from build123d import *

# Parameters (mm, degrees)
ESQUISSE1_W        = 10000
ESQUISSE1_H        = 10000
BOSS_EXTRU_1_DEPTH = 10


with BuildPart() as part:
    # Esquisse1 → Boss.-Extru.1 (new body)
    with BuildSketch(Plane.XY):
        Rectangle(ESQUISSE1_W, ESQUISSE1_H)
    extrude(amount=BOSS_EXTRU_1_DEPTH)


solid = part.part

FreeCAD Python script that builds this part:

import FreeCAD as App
import Part
import Sketcher

V = App.Vector
Q = App.Units.Quantity

doc = App.newDocument("Part")
body = doc.addObject("PartDesign::Body", "Body")

# Sketch on XY plane
sketch1 = body.newObject("Sketcher::SketchObject", "Sketch")
sketch1.AttachmentSupport = (doc.getObject("XY_Plane"), [""])
sketch1.MapMode = "FlatFace"
sketch1.addGeometry(Part.LineSegment(V(-5000, 5000, 0), V(-5000, -5000, 0)), False)
sketch1.addGeometry(Part.LineSegment(V(-5000, -5000, 0), V(5000, -5000, 0)), False)
sketch1.addGeometry(Part.LineSegment(V(5000, -5000, 0), V(5000, 5000, 0)), False)
sketch1.addGeometry(Part.LineSegment(V(5000, 5000, 0), V(-5000, 5000, 0)), False)
sketch1.addConstraint(Sketcher.Constraint("Coincident", 0, 2, 1, 1))
sketch1.addConstraint(Sketcher.Constraint("Coincident", 1, 2, 2, 1))
sketch1.addConstraint(Sketcher.Constraint("Coincident", 2, 2, 3, 1))
sketch1.addConstraint(Sketcher.Constraint("Coincident", 3, 2, 0, 1))
sketch1.addConstraint(Sketcher.Constraint("Vertical", 0))
sketch1.addConstraint(Sketcher.Constraint("Horizontal", 1))
sketch1.addConstraint(Sketcher.Constraint("Vertical", 2))
sketch1.addConstraint(Sketcher.Constraint("Horizontal", 3))
sketch1.addConstraint(Sketcher.Constraint("Symmetric", 0, 2, 2, 2, -1, 1))
sketch1.addConstraint(Sketcher.Constraint("Equal", 3, 0))
sketch1.addConstraint(Sketcher.Constraint("DistanceX", 1, 1, 1, 2, Q("10000 mm")))
pad1 = body.newObject("PartDesign::Pad", "Pad")
pad1.Profile = sketch1
pad1.Length = 10

doc.recompute()
